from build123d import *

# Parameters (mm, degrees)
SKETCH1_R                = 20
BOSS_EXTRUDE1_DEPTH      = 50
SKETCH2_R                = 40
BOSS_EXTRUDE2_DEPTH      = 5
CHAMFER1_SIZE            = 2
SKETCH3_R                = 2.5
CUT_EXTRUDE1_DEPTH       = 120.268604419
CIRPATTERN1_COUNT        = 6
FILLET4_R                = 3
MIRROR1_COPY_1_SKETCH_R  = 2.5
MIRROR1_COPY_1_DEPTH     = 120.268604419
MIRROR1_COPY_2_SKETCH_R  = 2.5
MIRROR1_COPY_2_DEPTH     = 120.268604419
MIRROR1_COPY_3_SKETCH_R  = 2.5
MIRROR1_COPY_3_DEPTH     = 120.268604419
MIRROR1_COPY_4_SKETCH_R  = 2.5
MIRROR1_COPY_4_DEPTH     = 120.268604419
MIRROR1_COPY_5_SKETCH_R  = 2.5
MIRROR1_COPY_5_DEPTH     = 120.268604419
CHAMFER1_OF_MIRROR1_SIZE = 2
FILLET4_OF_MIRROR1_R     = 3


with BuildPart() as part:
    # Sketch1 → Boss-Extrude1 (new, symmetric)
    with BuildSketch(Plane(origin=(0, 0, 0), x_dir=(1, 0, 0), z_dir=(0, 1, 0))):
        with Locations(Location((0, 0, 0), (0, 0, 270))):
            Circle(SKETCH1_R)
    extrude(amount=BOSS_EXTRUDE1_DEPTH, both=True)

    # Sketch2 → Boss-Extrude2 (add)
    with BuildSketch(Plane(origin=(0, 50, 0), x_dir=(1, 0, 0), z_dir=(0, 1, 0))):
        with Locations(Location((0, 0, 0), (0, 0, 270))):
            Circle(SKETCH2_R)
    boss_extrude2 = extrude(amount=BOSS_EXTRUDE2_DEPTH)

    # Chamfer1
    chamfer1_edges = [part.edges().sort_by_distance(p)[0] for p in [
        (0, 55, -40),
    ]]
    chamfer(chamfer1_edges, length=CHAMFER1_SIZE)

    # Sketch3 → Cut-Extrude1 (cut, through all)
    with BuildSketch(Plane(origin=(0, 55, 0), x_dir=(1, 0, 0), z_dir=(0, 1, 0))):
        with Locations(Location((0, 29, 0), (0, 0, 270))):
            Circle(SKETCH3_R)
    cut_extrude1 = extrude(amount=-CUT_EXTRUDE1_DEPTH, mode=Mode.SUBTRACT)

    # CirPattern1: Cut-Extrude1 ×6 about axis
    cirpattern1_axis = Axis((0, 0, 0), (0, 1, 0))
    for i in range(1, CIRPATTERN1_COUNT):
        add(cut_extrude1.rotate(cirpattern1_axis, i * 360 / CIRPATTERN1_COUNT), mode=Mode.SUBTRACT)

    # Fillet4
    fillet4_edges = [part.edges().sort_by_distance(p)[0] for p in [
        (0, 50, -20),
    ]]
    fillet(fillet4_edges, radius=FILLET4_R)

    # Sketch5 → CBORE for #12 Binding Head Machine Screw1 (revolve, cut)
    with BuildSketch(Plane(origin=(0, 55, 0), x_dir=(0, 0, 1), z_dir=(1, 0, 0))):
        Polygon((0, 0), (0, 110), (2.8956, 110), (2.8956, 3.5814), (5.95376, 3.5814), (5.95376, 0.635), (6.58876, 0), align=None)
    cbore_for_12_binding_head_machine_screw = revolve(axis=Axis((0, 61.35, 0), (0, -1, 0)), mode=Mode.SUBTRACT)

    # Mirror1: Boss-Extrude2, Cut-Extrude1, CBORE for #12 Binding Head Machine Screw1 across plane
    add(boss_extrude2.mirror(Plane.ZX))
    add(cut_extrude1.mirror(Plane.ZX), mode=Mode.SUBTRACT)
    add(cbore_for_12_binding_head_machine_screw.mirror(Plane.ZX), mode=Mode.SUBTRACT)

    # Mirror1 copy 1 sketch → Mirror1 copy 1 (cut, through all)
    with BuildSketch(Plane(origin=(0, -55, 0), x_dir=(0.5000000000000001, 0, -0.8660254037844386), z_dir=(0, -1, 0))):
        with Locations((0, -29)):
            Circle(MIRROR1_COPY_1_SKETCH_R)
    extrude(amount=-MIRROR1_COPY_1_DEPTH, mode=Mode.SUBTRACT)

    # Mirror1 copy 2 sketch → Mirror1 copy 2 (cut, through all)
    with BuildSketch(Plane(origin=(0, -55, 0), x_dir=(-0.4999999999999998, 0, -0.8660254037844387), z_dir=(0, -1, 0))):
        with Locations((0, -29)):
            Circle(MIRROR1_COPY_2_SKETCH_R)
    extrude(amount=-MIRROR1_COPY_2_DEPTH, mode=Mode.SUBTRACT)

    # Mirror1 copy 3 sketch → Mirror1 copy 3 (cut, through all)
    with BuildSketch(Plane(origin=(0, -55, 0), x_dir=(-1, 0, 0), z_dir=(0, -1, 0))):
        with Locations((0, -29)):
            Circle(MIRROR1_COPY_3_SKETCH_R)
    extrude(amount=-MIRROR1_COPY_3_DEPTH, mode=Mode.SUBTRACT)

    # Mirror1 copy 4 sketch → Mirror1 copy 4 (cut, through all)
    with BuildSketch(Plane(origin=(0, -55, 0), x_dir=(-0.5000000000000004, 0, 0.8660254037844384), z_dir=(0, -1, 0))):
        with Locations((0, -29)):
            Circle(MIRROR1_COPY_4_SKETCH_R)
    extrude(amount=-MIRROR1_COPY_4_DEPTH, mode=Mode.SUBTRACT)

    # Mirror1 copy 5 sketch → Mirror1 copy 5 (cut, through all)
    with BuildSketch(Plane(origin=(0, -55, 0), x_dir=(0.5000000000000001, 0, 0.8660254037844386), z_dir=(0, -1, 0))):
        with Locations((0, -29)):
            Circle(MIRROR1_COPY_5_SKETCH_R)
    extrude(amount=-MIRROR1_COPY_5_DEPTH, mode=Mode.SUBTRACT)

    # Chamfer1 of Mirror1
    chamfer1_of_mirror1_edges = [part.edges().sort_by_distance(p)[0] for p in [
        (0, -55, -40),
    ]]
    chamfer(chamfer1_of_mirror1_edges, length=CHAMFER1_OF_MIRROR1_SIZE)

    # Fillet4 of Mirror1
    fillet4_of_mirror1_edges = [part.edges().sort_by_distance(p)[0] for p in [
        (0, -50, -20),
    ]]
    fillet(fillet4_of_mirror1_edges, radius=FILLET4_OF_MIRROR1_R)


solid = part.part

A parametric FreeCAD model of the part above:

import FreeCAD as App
import Part
import Sketcher

V = App.Vector
Q = App.Units.Quantity


def edges_at(feature, points):
    """Names of the edges that pass closest to the given points."""
    edges = feature.Shape.Edges
    near = lambda p: min(range(len(edges)), key=lambda i: edges[i].distToShape(Part.Vertex(*p))[0])
    return sorted({f"Edge{near(p) + 1}" for p in points})


def add_polygon(sketch, points):
    """Adds a closed chain of lines whose ends are joined by coincident constraints."""
    first, n = sketch.GeometryCount, len(points)
    for a, b in zip(points, points[1:] + points[:1]):
        sketch.addGeometry(Part.LineSegment(App.Vector(*a, 0), App.Vector(*b, 0)), False)
    for i in range(n):
        sketch.addConstraint(Sketcher.Constraint("Coincident", first + i, 2, first + (i + 1) % n, 1))

doc = App.newDocument("Part")
params = doc.addObject("Spreadsheet::Sheet", "Params")
for row, (alias, value) in enumerate([
    ("sketch1_diameter", "40 mm"),
    ("pad1_length", "100 mm"),
    ("sketch2_diameter", "80 mm"),
    ("pad2_length", "5 mm"),
    ("chamfer_size", "2 mm"),
    ("sketch3_diameter", "5 mm"),
    ("fillet_radius", "3 mm"),
    ("sketch4_width", "110 mm"),
    ("groove_angle", "360 deg"),
    ("sketch5_diameter", "5 mm"),
    ("sketch6_diameter", "5 mm"),
    ("sketch7_diameter", "5 mm"),
    ("sketch8_diameter", "5 mm"),
    ("sketch9_diameter", "5 mm"),
    ("chamfer2_size", "2 mm"),
    ("fillet2_radius", "3 mm"),
], start=1):
    params.set(f"A{row}", alias)
    params.set(f"B{row}", "=" + value)
    params.setAlias(f"B{row}", alias)

body = doc.addObject("PartDesign::Body", "Body")

# Sketch on XZ plane
sketch1 = doc.addObject("Sketcher::SketchObject", "Sketch")
body.addObject(sketch1)
sketch1.AttachmentSupport = (doc.XZ_Plane, [""])
sketch1.MapMode = "FlatFace"
sketch1.addGeometry(Part.Circle(V(0, 0, 0), V(0, 0, 1), 20), False)
sketch1.addConstraint(Sketcher.Constraint("Coincident", 0, 3, -1, 1))
sketch1.addConstraint(Sketcher.Constraint("Diameter", 0, 40.0))
sketch1.setExpression("Constraints[1]", "Params.sketch1_diameter")
pad1 = doc.addObject("PartDesign::Pad", "Pad")
body.addObject(pad1)
pad1.Profile = sketch1
pad1.setExpression("Length", "Params.pad1_length")
pad1.Midplane = True

# Sketch on XZ plane
sketch2 = doc.addObject("Sketcher::SketchObject", "Sketch001")
body.addObject(sketch2)
sketch2.AttachmentSupport = (doc.XZ_Plane, [""])
sketch2.MapMode = "FlatFace"
sketch2.AttachmentOffset = App.Placement(V(0, 0, -50), App.Rotation())
sketch2.addGeometry(Part.Circle(V(0, 0, 0), V(0, 0, 1), 40), False)
sketch2.addConstraint(Sketcher.Constraint("Coincident", 0, 3, -1, 1))
sketch2.addConstraint(Sketcher.Constraint("Diameter", 0, 80.0))
sketch2.setExpression("Constraints[1]", "Params.sketch2_diameter")
pad2 = doc.addObject("PartDesign::Pad", "Pad001")
body.addObject(pad2)
pad2.Profile = sketch2
pad2.setExpression("Length", "Params.pad2_length")
pad2.Reversed = True
doc.recompute()

chamfer = doc.addObject("PartDesign::Chamfer", "Chamfer")
body.addObject(chamfer)
chamfer.Base = (pad2, edges_at(pad2, [(0, 55, -40)]))
chamfer.setExpression("Size", "Params.chamfer_size")

# Sketch on XZ plane
sketch3 = doc.addObject("Sketcher::SketchObject", "Sketch002")
body.addObject(sketch3)
sketch3.AttachmentSupport = (doc.XZ_Plane, [""])
sketch3.MapMode = "FlatFace"
sketch3.AttachmentOffset = App.Placement(V(0, 0, -55), App.Rotation())
sketch3.addGeometry(Part.Circle(V(0, -29, 0), V(0, 0, 1), 2.5), False)
sketch3.addConstraint(Sketcher.Constraint("PointOnObject", 0, 3, -2))
sketch3.addConstraint(Sketcher.Constraint("Diameter", 0, 5.0))
sketch3.addConstraint(Sketcher.Constraint("DistanceY", 0, 3, -1, 1, 29.0))
sketch3.setExpression("Constraints[1]", "Params.sketch3_diameter")
pocket1 = doc.addObject("PartDesign::Pocket", "Pocket")
body.addObject(pocket1)
pocket1.Profile = sketch3
pocket1.Type = "ThroughAll"
pocket1.Reversed = True
doc.recompute()

polarpattern = doc.addObject("PartDesign::PolarPattern", "PolarPattern")
body.addObject(polarpattern)
polarpattern.Originals = [pocket1]
polarpattern.Axis = (doc.Y_Axis, [""])
polarpattern.Angle = 360
polarpattern.Occurrences = 6
body.Tip = polarpattern
doc.recompute()

fillet = doc.addObject("PartDesign::Fillet", "Fillet")
body.addObject(fillet)
fillet.Base = (polarpattern, edges_at(polarpattern, [(0, 50, -20)]))
fillet.setExpression("Radius", "Params.fillet_radius")

# Sketch on YZ plane
sketch4 = doc.addObject("Sketcher::SketchObject", "Sketch003")
body.addObject(sketch4)
sketch4.AttachmentSupport = (doc.YZ_Plane, [""])
sketch4.MapMode = "FlatFace"
add_polygon(sketch4, [(-55, 0), (55, 0), (55, 6.58876), (54.365, 5.95376), (51.4186, 5.95376), (51.4186, 2.8956), (-55, 2.8956)])  # lines 0-6
sketch4.addConstraint(Sketcher.Constraint("Horizontal", 0))
sketch4.addConstraint(Sketcher.Constraint("Vertical", 1))
sketch4.addConstraint(Sketcher.Constraint("Horizontal", 3))
sketch4.addConstraint(Sketcher.Constraint("Vertical", 4))
sketch4.addConstraint(Sketcher.Constraint("Horizontal", 5))
sketch4.addConstraint(Sketcher.Constraint("Vertical", 6))
sketch4.addConstraint(Sketcher.Constraint("Symmetric", 0, 2, 6, 2, -1, 1))
sketch4.addConstraint(Sketcher.Constraint("DistanceX", 0, 1, 0, 2, 110.0))
sketch4.addConstraint(Sketcher.Constraint("Angle", 2, Q("-135 deg")))
sketch4.addConstraint(Sketcher.Constraint("DistanceX", 3, 2, 3, 1, 2.9464))
sketch4.addConstraint(Sketcher.Constraint("DistanceX", 5, 2, 5, 1, 106.4186))
sketch4.addConstraint(Sketcher.Constraint("DistanceY", 6, 2, 6, 1, 2.8956))
sketch4.addConstraint(Sketcher.Constraint("DistanceY", 1, 1, 1, 2, 6.58876))
sketch4.setExpression("Constraints[14]", "Params.sketch4_width")
groove = doc.addObject("PartDesign::Groove", "Groove")
body.addObject(groove)
groove.Profile = sketch4
groove.ReferenceAxis = (sketch4, ["H_Axis"])
groove.setExpression("Angle", "Params.groove_angle")
doc.recompute()

mirrored = doc.addObject("PartDesign::Mirrored", "Mirrored")
body.addObject(mirrored)
mirrored.Originals = [pad2, pocket1, groove]
mirrored.MirrorPlane = (doc.XZ_Plane, [""])
body.Tip = mirrored

# Sketch on XZ plane
sketch5 = doc.addObject("Sketcher::SketchObject", "Sketch004")
body.addObject(sketch5)
sketch5.AttachmentSupport = (doc.XZ_Plane, [""])
sketch5.MapMode = "FlatFace"
sketch5.AttachmentOffset = App.Placement(V(0, 0, 55), App.Rotation())
sketch5.addGeometry(Part.Circle(V(-25.114737, -14.5, 0), V(0, 0, 1), 2.5), False)
sketch5.addConstraint(Sketcher.Constraint("Diameter", 0, 5.0))
sketch5.addConstraint(Sketcher.Constraint("DistanceY", 0, 3, -1, 1, 14.5))
sketch5.addConstraint(Sketcher.Constraint("DistanceX", 0, 3, -1, 1, 25.114737))
sketch5.setExpression("Constraints[0]", "Params.sketch5_diameter")
pocket2 = doc.addObject("PartDesign::Pocket", "Pocket001")
body.addObject(pocket2)
pocket2.Profile = sketch5
pocket2.Type = "ThroughAll"

# Sketch on XZ plane
sketch6 = doc.addObject("Sketcher::SketchObject", "Sketch005")
body.addObject(sketch6)
sketch6.AttachmentSupport = (doc.XZ_Plane, [""])
sketch6.MapMode = "FlatFace"
sketch6.AttachmentOffset = App.Placement(V(0, 0, 55), App.Rotation())
sketch6.addGeometry(Part.Circle(V(-25.114737, 14.5, 0), V(0, 0, 1), 2.5), False)
sketch6.addConstraint(Sketcher.Constraint("Diameter", 0, 5.0))
sketch6.addConstraint(Sketcher.Constraint("DistanceY", -1, 1, 0, 3, 14.5))
sketch6.addConstraint(Sketcher.Constraint("DistanceX", 0, 3, -1, 1, 25.114737))
sketch6.setExpression("Constraints[0]", "Params.sketch6_diameter")
pocket3 = doc.addObject("PartDesign::Pocket", "Pocket002")
body.addObject(pocket3)
pocket3.Profile = sketch6
pocket3.Type = "ThroughAll"

# Sketch on XZ plane
sketch7 = doc.addObject("Sketcher::SketchObject", "Sketch006")
body.addObject(sketch7)
sketch7.AttachmentSupport = (doc.XZ_Plane, [""])
sketch7.MapMode = "FlatFace"
sketch7.AttachmentOffset = App.Placement(V(0, 0, 55), App.Rotation())
sketch7.addGeometry(Part.Circle(V(0, 29, 0), V(0, 0, 1), 2.5), False)
sketch7.addConstraint(Sketcher.Constraint("PointOnObject", 0, 3, -2))
sketch7.addConstraint(Sketcher.Constraint("Diameter", 0, 5.0))
sketch7.addConstraint(Sketcher.Constraint("DistanceY", -1, 1, 0, 3, 29.0))
sketch7.setExpression("Constraints[1]", "Params.sketch7_diameter")
pocket4 = doc.addObject("PartDesign::Pocket", "Pocket003")
body.addObject(pocket4)
pocket4.Profile = sketch7
pocket4.Type = "ThroughAll"

# Sketch on XZ plane
sketch8 = doc.addObject("Sketcher::SketchObject", "Sketch007")
body.addObject(sketch8)
sketch8.AttachmentSupport = (doc.XZ_Plane, [""])
sketch8.MapMode = "FlatFace"
sketch8.AttachmentOffset = App.Placement(V(0, 0, 55), App.Rotation())
sketch8.addGeometry(Part.Circle(V(25.114737, 14.5, 0), V(0, 0, 1), 2.5), False)
sketch8.addConstraint(Sketcher.Constraint("Diameter", 0, 5.0))
sketch8.addConstraint(Sketcher.Constraint("DistanceY", -1, 1, 0, 3, 14.5))
sketch8.addConstraint(Sketcher.Constraint("DistanceX", -1, 1, 0, 3, 25.114737))
sketch8.setExpression("Constraints[0]", "Params.sketch8_diameter")
pocket5 = doc.addObject("PartDesign::Pocket", "Pocket004")
body.addObject(pocket5)
pocket5.Profile = sketch8
pocket5.Type = "ThroughAll"

# Sketch on XZ plane
sketch9 = doc.addObject("Sketcher::SketchObject", "Sketch008")
body.addObject(sketch9)
sketch9.AttachmentSupport = (doc.XZ_Plane, [""])
sketch9.MapMode = "FlatFace"
sketch9.AttachmentOffset = App.Placement(V(0, 0, 55), App.Rotation())
sketch9.addGeometry(Part.Circle(V(25.114737, -14.5, 0), V(0, 0, 1), 2.5), False)
sketch9.addConstraint(Sketcher.Constraint("Diameter", 0, 5.0))
sketch9.addConstraint(Sketcher.Constraint("DistanceY", 0, 3, -1, 1, 14.5))
sketch9.addConstraint(Sketcher.Constraint("DistanceX", -1, 1, 0, 3, 25.114737))
sketch9.setExpression("Constraints[0]", "Params.sketch9_diameter")
pocket6 = doc.addObject("PartDesign::Pocket", "Pocket005")
body.addObject(pocket6)
pocket6.Profile = sketch9
pocket6.Type = "ThroughAll"
doc.recompute()

chamfer2 = doc.addObject("PartDesign::Chamfer", "Chamfer001")
body.addObject(chamfer2)
chamfer2.Base = (pocket6, edges_at(pocket6, [(0, -55, -40)]))
chamfer2.setExpression("Size", "Params.chamfer2_size")
doc.recompute()

fillet2 = doc.addObject("PartDesign::Fillet", "Fillet001")
body.addObject(fillet2)
fillet2.Base = (chamfer2, edges_at(chamfer2, [(0, -50, -20)]))
fillet2.setExpression("Radius", "Params.fillet2_radius")

doc.recompute()
